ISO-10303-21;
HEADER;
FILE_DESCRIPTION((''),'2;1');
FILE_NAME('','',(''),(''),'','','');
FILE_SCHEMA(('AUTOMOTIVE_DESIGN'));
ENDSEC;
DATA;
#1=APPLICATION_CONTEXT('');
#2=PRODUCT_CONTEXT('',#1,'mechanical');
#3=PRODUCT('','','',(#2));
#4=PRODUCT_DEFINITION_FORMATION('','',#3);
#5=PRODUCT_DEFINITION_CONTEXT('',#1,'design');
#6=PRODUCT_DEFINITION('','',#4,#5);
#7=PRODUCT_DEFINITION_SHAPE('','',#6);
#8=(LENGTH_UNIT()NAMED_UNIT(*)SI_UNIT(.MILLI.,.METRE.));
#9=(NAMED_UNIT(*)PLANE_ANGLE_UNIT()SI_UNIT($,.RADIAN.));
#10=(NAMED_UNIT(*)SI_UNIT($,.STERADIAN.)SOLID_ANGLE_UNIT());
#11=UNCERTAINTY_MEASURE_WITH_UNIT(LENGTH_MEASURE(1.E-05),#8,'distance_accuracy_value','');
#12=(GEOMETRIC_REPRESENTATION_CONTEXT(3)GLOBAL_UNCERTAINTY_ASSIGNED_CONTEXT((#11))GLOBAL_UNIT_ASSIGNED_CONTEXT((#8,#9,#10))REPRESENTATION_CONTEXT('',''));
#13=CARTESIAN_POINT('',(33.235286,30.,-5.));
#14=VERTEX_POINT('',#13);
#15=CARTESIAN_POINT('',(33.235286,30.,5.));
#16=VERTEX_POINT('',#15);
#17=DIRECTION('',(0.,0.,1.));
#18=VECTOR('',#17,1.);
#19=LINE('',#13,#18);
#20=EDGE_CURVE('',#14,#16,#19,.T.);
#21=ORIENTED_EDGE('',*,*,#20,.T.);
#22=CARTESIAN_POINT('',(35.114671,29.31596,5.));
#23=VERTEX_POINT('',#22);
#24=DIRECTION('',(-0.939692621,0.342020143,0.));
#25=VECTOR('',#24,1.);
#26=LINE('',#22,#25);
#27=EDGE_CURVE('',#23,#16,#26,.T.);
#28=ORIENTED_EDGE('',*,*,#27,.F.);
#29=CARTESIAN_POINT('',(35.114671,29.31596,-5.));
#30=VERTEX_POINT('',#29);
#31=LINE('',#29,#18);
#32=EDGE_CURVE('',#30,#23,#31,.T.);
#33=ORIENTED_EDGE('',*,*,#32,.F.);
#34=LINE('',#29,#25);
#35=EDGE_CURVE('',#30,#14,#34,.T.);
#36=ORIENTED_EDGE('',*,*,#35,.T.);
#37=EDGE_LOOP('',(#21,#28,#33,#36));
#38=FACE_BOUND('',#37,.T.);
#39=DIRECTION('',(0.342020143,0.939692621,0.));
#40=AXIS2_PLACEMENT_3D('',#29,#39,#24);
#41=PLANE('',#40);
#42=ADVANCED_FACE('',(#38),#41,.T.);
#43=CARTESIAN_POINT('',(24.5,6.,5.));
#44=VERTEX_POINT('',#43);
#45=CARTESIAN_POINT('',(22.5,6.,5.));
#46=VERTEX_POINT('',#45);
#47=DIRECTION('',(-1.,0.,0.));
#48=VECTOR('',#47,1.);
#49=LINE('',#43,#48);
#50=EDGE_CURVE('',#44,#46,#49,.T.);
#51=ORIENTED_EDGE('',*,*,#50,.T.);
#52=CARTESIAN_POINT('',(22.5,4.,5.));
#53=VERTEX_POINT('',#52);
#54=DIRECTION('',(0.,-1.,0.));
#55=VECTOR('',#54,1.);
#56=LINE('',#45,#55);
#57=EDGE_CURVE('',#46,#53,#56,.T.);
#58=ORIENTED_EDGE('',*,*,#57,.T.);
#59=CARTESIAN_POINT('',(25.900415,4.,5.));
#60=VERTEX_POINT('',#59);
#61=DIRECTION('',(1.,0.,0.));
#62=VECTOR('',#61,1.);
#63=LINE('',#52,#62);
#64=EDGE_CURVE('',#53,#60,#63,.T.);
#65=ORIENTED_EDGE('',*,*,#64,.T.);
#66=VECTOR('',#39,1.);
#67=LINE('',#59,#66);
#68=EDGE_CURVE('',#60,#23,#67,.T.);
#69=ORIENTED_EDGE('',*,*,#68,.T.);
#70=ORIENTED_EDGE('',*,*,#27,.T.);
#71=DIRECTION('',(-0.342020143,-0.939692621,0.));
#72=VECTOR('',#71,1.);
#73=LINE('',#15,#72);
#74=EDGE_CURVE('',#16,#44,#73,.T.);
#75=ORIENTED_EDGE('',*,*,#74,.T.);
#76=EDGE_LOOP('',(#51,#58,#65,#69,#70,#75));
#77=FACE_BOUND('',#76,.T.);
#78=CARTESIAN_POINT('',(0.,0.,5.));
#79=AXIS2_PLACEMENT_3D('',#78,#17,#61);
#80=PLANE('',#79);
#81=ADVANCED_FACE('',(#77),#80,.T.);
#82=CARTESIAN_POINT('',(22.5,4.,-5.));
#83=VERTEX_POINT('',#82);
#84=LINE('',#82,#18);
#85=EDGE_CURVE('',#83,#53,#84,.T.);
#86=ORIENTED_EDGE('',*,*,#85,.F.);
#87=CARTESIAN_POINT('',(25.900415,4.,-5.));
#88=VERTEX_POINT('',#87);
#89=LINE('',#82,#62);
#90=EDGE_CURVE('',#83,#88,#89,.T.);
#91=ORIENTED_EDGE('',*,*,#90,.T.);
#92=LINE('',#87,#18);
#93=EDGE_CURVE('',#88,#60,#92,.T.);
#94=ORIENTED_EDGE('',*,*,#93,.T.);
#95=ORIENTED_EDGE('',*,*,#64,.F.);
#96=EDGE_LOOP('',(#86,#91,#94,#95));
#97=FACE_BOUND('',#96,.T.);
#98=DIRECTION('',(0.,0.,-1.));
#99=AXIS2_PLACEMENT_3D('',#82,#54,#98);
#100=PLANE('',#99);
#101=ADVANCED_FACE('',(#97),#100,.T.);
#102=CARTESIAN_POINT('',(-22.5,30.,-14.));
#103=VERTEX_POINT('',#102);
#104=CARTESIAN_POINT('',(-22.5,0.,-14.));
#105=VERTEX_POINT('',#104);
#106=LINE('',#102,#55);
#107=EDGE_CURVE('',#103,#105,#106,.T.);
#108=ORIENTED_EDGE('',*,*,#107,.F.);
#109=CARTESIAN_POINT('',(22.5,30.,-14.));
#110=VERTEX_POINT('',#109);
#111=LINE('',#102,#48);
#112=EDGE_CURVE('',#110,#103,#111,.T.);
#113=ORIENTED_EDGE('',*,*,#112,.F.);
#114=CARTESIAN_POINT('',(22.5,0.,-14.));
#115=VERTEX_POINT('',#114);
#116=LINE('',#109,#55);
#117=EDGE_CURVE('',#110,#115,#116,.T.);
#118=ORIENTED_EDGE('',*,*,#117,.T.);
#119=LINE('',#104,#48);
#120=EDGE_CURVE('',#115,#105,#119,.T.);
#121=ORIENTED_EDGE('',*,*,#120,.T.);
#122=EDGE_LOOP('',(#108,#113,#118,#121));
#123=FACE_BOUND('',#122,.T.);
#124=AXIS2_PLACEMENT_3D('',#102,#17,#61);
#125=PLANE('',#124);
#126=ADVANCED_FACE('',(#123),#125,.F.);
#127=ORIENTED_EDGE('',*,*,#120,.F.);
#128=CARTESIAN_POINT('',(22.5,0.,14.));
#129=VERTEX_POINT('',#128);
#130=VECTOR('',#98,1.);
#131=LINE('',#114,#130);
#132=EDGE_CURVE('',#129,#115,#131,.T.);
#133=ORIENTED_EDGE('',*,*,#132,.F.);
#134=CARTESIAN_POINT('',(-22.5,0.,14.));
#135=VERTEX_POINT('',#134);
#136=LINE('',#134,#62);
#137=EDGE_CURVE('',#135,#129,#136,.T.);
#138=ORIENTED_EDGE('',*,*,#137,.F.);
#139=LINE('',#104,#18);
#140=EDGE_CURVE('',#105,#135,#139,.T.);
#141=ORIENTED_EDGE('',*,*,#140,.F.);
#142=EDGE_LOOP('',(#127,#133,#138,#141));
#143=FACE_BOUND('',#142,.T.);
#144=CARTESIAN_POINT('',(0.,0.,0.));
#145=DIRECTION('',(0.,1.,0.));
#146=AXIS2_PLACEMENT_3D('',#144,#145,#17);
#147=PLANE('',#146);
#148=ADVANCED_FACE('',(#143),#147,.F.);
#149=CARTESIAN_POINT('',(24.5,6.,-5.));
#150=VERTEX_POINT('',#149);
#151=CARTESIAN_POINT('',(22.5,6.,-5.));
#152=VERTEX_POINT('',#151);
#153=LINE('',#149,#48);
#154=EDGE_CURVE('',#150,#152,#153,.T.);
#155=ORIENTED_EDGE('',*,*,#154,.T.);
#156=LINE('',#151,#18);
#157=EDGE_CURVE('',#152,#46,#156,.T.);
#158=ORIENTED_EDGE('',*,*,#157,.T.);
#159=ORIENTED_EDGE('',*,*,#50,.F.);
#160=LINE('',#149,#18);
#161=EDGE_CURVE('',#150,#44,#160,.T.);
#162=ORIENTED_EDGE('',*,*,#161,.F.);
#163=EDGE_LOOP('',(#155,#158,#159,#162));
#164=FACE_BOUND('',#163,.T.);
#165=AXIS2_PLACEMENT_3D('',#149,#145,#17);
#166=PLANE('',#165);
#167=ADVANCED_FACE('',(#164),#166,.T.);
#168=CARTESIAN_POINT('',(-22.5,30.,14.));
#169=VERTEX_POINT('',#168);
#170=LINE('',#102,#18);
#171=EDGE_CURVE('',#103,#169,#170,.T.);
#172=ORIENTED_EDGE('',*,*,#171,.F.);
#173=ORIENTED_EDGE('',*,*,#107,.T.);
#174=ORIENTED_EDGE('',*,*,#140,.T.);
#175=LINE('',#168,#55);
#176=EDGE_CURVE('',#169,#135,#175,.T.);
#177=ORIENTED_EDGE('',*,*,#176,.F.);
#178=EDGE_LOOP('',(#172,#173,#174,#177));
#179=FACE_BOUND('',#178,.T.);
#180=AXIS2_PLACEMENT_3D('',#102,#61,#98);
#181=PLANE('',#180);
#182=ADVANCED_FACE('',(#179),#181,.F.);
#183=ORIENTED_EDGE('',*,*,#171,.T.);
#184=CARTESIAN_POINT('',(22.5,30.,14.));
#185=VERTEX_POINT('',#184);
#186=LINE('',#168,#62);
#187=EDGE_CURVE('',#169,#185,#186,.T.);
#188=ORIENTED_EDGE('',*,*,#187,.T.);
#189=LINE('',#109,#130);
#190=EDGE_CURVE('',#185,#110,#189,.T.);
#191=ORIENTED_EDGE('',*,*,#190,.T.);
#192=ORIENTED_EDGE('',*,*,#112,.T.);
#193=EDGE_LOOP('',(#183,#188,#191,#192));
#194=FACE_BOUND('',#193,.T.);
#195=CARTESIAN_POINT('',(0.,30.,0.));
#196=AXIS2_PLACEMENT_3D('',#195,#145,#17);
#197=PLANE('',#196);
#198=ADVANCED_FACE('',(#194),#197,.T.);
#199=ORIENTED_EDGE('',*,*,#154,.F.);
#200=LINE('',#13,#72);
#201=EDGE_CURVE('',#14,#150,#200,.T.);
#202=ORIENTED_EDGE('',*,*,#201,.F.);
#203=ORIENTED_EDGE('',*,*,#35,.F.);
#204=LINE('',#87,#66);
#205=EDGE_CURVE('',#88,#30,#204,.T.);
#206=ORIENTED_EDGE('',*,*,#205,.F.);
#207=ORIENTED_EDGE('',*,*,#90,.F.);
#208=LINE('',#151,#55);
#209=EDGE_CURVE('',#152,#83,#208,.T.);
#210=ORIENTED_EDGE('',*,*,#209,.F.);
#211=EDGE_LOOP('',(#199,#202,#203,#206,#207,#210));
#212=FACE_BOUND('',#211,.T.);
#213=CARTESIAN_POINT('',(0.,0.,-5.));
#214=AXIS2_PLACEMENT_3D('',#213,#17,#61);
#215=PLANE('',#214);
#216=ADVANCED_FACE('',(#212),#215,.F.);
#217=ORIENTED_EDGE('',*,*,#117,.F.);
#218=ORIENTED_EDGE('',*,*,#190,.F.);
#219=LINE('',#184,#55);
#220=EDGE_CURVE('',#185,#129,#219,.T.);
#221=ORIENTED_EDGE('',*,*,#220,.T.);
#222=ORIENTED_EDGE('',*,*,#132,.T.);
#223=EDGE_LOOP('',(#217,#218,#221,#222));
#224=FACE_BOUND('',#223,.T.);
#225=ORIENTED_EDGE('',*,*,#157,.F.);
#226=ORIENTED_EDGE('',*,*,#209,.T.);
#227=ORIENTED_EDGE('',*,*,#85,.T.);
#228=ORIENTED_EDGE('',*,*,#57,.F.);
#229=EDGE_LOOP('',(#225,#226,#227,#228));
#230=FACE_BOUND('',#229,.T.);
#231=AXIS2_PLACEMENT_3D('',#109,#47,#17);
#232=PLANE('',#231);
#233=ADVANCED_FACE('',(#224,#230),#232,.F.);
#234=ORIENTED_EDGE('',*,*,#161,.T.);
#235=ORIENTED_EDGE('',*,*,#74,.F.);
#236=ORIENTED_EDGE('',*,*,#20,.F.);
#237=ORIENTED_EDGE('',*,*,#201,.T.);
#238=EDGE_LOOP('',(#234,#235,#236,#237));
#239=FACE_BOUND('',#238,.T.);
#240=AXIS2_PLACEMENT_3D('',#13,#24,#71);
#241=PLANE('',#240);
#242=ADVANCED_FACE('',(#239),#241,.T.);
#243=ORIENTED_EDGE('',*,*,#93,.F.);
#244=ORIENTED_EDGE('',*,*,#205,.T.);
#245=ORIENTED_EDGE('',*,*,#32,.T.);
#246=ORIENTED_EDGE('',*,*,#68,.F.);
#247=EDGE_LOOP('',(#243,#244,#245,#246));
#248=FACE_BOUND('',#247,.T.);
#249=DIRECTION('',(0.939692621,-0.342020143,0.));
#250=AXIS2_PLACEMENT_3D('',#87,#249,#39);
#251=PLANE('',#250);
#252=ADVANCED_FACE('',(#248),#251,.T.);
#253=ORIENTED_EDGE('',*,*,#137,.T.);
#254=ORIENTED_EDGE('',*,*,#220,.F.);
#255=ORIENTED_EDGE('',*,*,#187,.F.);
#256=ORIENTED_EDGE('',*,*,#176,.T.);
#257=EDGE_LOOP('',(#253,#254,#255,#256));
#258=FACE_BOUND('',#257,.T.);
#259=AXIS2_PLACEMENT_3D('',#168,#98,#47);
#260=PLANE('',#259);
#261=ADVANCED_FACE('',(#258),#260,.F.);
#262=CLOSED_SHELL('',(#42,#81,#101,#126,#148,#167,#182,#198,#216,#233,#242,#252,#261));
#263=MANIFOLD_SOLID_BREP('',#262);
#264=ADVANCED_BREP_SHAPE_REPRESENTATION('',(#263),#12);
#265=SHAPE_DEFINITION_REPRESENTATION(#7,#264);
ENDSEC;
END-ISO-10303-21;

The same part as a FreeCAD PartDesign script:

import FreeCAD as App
import Part
import Sketcher
from FreeCAD import Vector
Q = App.Units.Quantity

doc = App.newDocument("Part")
body = doc.addObject("PartDesign::Body", "Body")

# Sketch on XZ plane
sketch1 = body.newObject("Sketcher::SketchObject", "Sketch")
sketch1.AttachmentSupport = (doc.getObject("XZ_Plane"), [""])
sketch1.MapMode = "FlatFace"
sketch1.addGeometry(Part.LineSegment(Vector(-22, -14, 0), Vector(-22, 14, 0)), False)
sketch1.addGeometry(Part.LineSegment(Vector(-22, 14, 0), Vector(22, 14, 0)), False)
sketch1.addGeometry(Part.LineSegment(Vector(22, 14, 0), Vector(22, -14, 0)), False)
sketch1.addGeometry(Part.LineSegment(Vector(22, -14, 0), Vector(-22, -14, 0)), False)
sketch1.addConstraint(Sketcher.Constraint("Coincident", 0, 2, 1, 1))
sketch1.addConstraint(Sketcher.Constraint("Coincident", 1, 2, 2, 1))
sketch1.addConstraint(Sketcher.Constraint("Coincident", 2, 2, 3, 1))
sketch1.addConstraint(Sketcher.Constraint("Coincident", 3, 2, 0, 1))
sketch1.addConstraint(Sketcher.Constraint("Vertical", 0))
sketch1.addConstraint(Sketcher.Constraint("Horizontal", 1))
sketch1.addConstraint(Sketcher.Constraint("Vertical", 2))
sketch1.addConstraint(Sketcher.Constraint("Horizontal", 3))
sketch1.addConstraint(Sketcher.Constraint("Symmetric", 0, 2, 2, 2, -1, 1))
sketch1.addConstraint(Sketcher.Constraint("DistanceX", 1, 1, 1, 2, 45.0))
sketch1.addConstraint(Sketcher.Constraint("DistanceY", 0, 1, 0, 2, 28.0))
pad1 = body.newObject("PartDesign::Pad", "Pad")
pad1.Profile = sketch1
pad1.Length = 30
pad1.Reversed = True

# Sketch on XY plane
sketch2 = body.newObject("Sketcher::SketchObject", "Sketch001")
sketch2.AttachmentSupport = (doc.getObject("XY_Plane"), [""])
sketch2.MapMode = "FlatFace"
sketch2.addGeometry(Part.LineSegment(Vector(22.5, 4, 0), Vector(25.9, 4, 0)), False)
sketch2.addGeometry(Part.LineSegment(Vector(25.9, 4, 0), Vector(35.1, 29.3, 0)), False)
sketch2.addGeometry(Part.LineSegment(Vector(35.1, 29.3, 0), Vector(33.2, 30, 0)), False)
sketch2.addGeometry(Part.LineSegment(Vector(33.2, 30, 0), Vector(24.5, 6, 0)), False)
sketch2.addGeometry(Part.LineSegment(Vector(24.5, 6, 0), Vector(22.5, 6, 0)), False)
sketch2.addGeometry(Part.LineSegment(Vector(22.5, 6, 0), Vector(22.5, 4, 0)), False)
sketch2.addConstraint(Sketcher.Constraint("Coincident", 0, 2, 1, 1))
sketch2.addConstraint(Sketcher.Constraint("Coincident", 1, 2, 2, 1))
sketch2.addConstraint(Sketcher.Constraint("Coincident", 2, 2, 3, 1))
sketch2.addConstraint(Sketcher.Constraint("Coincident", 3, 2, 4, 1))
sketch2.addConstraint(Sketcher.Constraint("Coincident", 4, 2, 5, 1))
sketch2.addConstraint(Sketcher.Constraint("Coincident", 5, 2, 0, 1))
sketch2.addConstraint(Sketcher.Constraint("Horizontal", 0))
sketch2.addConstraint(Sketcher.Constraint("Horizontal", 4))
sketch2.addConstraint(Sketcher.Constraint("Vertical", 5))
sketch2.addConstraint(Sketcher.Constraint("Perpendicular", 1, 2))
sketch2.addConstraint(Sketcher.Constraint("Perpendicular", 2, 3))
sketch2.addConstraint(Sketcher.Constraint("Equal", 4, 5))
sketch2.addConstraint(Sketcher.Constraint("DistanceX", 4, 2, 4, 1, 2.0))
sketch2.addConstraint(Sketcher.Constraint("Angle", 1, Q("70 deg")))
sketch2.addConstraint(Sketcher.Constraint("Distance", 2, 2.0))
sketch2.addConstraint(Sketcher.Constraint("DistanceY", -1, 1, 0, 2, 4.0))
sketch2.addConstraint(Sketcher.Constraint("DistanceY", -1, 1, 2, 2, 30.0))
sketch2.addConstraint(Sketcher.Constraint("DistanceX", -1, 1, 3, 2, 24.5))
pad2 = body.newObject("PartDesign::Pad", "Pad001")
pad2.Profile = sketch2
pad2.Type = "TwoLengths"
pad2.Length = 5
pad2.Length2 = 5

doc.recompute()
